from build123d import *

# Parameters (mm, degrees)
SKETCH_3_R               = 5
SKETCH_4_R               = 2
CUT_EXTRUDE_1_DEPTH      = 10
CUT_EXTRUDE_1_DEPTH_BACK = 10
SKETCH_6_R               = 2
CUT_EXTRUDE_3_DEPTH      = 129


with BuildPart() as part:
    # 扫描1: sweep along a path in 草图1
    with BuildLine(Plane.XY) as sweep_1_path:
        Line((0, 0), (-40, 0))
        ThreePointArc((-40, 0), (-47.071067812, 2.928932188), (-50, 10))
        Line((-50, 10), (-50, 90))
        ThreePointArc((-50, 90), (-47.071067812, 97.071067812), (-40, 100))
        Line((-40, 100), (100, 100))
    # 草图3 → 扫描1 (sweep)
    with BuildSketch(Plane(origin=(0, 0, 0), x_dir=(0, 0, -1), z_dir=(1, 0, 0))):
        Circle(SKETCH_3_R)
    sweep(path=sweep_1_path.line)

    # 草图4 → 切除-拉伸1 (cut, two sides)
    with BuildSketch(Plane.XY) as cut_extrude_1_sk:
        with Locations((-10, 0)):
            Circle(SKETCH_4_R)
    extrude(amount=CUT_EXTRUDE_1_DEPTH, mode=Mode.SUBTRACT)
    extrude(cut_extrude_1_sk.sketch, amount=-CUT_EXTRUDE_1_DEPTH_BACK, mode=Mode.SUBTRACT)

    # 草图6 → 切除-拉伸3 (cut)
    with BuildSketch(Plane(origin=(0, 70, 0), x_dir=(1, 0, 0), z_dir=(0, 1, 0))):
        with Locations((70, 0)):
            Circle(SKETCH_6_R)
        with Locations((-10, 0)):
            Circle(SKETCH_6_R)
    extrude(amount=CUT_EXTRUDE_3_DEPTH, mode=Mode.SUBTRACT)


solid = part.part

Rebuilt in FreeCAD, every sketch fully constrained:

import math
import FreeCAD as App
import Part
import Sketcher
from FreeCAD import Vector

doc = App.newDocument("Part")
params = doc.addObject("Spreadsheet::Sheet", "Params")
for row, (alias, value) in enumerate([
    ("sketch1_diameter", "10 mm"),
    ("sketch2_radius", "10 mm"),
    ("sketch2_width", "40 mm"),
    ("sketch2_width2", "140 mm"),
    ("sketch2_height", "80 mm"),
    ("sketch3_diameter", "4 mm"),
    ("sketch4_diameter", "4 mm"),
    ("pocket2_length", "129 mm"),
], start=1):
    params.set(f"A{row}", alias)
    params.set(f"B{row}", "=" + value)
    params.setAlias(f"B{row}", alias)

body = doc.addObject("PartDesign::Body", "Body")

sketch1 = doc.addObject("Sketcher::SketchObject", "Sketch")
body.addObject(sketch1)
sketch1.AttachmentSupport = (doc.YZ_Plane, [""])
sketch1.MapMode = "FlatFace"
sketch1.addGeometry(Part.Circle(Vector(0, 0, 0), Vector(0, 0, 1), 5), False)
sketch1.addConstraint([
    Sketcher.Constraint("Coincident", 0, 3, -1, 1),
    Sketcher.Constraint("Diameter", 0, 10.0),
])
sketch1.setExpression("Constraints[1]", "Params.sketch1_diameter")

sketch2 = doc.addObject("Sketcher::SketchObject", "Sketch001")
body.addObject(sketch2)
sketch2.AttachmentSupport = (doc.XY_Plane, [""])
sketch2.MapMode = "FlatFace"
sketch2.addGeometry([
    Part.LineSegment(Vector(0, 0, 0), Vector(-40, 0, 0)),
    Part.ArcOfCircle(Part.Circle(Vector(-40, 10, 0), Vector(0, 0, 1), 10), math.radians(180), math.radians(270)),
    Part.LineSegment(Vector(-50, 10, 0), Vector(-50, 90, 0)),
    Part.ArcOfCircle(Part.Circle(Vector(-40, 90, 0), Vector(0, 0, 1), 10), math.radians(90), math.radians(180)),
    Part.LineSegment(Vector(-40, 100, 0), Vector(100, 100, 0)),
], False)
sketch2.addConstraint([
    Sketcher.Constraint("Tangent", 0, 2, 1, 2),
    Sketcher.Constraint("Tangent", 1, 1, 2, 1),
    Sketcher.Constraint("Tangent", 2, 2, 3, 2),
    Sketcher.Constraint("Tangent", 3, 1, 4, 1),
    Sketcher.Constraint("Horizontal", 0),
    Sketcher.Constraint("Vertical", 2),
    Sketcher.Constraint("Horizontal", 4),
    Sketcher.Constraint("Coincident", 0, 1, -1, 1),
    Sketcher.Constraint("Equal", 1, 3),
    Sketcher.Constraint("Radius", 1, 10.0),
    Sketcher.Constraint("DistanceX", 0, 2, 0, 1, 40.0),
    Sketcher.Constraint("DistanceX", 4, 1, 4, 2, 140.0),
    Sketcher.Constraint("DistanceY", 2, 1, 2, 2, 80.0),
])
sketch2.setExpression("Constraints[9]", "Params.sketch2_radius")
sketch2.setExpression("Constraints[10]", "Params.sketch2_width")
sketch2.setExpression("Constraints[11]", "Params.sketch2_width2")
sketch2.setExpression("Constraints[12]", "Params.sketch2_height")
doc.recompute()

additivepipe = doc.addObject("PartDesign::AdditivePipe", "AdditivePipe")
body.addObject(additivepipe)
additivepipe.Profile = sketch1
additivepipe.Spine = (sketch2, ["Edge1", "Edge2", "Edge3", "Edge4", "Edge5"])

sketch3 = doc.addObject("Sketcher::SketchObject", "Sketch002")
body.addObject(sketch3)
sketch3.AttachmentSupport = (doc.XY_Plane, [""])
sketch3.MapMode = "FlatFace"
sketch3.addGeometry(Part.Circle(Vector(-10, 0, 0), Vector(0, 0, 1), 2), False)
sketch3.addConstraint([
    Sketcher.Constraint("PointOnObject", 0, 3, -1),
    Sketcher.Constraint("Diameter", 0, 4.0),
    Sketcher.Constraint("DistanceX", 0, 3, -1, 1, 10.0),
])
sketch3.setExpression("Constraints[1]", "Params.sketch3_diameter")
pocket1 = doc.addObject("PartDesign::Pocket", "Pocket")
body.addObject(pocket1)
pocket1.Profile = sketch3
pocket1.Type = "ThroughAll"
pocket1.Midplane = True

sketch4 = doc.addObject("Sketcher::SketchObject", "Sketch003")
body.addObject(sketch4)
sketch4.AttachmentSupport = (doc.XZ_Plane, [""])
sketch4.MapMode = "FlatFace"
sketch4.AttachmentOffset = App.Placement(Vector(0, 0, -70), App.Rotation())
sketch4.addGeometry([
    Part.Circle(Vector(70, 0, 0), Vector(0, 0, 1), 2),
    Part.Circle(Vector(-10, 0, 0), Vector(0, 0, 1), 2),
], False)
sketch4.addConstraint([
    Sketcher.Constraint("Equal", 0, 1),
    Sketcher.Constraint("PointOnObject", 0, 3, -1),
    Sketcher.Constraint("PointOnObject", 1, 3, -1),
    Sketcher.Constraint("Diameter", 0, 4.0),
    Sketcher.Constraint("DistanceX", -1, 1, 0, 3, 70.0),
    Sketcher.Constraint("DistanceX", 1, 3, -1, 1, 10.0),
])
sketch4.setExpression("Constraints[3]", "Params.sketch4_diameter")
pocket2 = doc.addObject("PartDesign::Pocket", "Pocket001")
body.addObject(pocket2)
pocket2.Profile = sketch4
pocket2.setExpression("Length", "Params.pocket2_length")

doc.recompute()
